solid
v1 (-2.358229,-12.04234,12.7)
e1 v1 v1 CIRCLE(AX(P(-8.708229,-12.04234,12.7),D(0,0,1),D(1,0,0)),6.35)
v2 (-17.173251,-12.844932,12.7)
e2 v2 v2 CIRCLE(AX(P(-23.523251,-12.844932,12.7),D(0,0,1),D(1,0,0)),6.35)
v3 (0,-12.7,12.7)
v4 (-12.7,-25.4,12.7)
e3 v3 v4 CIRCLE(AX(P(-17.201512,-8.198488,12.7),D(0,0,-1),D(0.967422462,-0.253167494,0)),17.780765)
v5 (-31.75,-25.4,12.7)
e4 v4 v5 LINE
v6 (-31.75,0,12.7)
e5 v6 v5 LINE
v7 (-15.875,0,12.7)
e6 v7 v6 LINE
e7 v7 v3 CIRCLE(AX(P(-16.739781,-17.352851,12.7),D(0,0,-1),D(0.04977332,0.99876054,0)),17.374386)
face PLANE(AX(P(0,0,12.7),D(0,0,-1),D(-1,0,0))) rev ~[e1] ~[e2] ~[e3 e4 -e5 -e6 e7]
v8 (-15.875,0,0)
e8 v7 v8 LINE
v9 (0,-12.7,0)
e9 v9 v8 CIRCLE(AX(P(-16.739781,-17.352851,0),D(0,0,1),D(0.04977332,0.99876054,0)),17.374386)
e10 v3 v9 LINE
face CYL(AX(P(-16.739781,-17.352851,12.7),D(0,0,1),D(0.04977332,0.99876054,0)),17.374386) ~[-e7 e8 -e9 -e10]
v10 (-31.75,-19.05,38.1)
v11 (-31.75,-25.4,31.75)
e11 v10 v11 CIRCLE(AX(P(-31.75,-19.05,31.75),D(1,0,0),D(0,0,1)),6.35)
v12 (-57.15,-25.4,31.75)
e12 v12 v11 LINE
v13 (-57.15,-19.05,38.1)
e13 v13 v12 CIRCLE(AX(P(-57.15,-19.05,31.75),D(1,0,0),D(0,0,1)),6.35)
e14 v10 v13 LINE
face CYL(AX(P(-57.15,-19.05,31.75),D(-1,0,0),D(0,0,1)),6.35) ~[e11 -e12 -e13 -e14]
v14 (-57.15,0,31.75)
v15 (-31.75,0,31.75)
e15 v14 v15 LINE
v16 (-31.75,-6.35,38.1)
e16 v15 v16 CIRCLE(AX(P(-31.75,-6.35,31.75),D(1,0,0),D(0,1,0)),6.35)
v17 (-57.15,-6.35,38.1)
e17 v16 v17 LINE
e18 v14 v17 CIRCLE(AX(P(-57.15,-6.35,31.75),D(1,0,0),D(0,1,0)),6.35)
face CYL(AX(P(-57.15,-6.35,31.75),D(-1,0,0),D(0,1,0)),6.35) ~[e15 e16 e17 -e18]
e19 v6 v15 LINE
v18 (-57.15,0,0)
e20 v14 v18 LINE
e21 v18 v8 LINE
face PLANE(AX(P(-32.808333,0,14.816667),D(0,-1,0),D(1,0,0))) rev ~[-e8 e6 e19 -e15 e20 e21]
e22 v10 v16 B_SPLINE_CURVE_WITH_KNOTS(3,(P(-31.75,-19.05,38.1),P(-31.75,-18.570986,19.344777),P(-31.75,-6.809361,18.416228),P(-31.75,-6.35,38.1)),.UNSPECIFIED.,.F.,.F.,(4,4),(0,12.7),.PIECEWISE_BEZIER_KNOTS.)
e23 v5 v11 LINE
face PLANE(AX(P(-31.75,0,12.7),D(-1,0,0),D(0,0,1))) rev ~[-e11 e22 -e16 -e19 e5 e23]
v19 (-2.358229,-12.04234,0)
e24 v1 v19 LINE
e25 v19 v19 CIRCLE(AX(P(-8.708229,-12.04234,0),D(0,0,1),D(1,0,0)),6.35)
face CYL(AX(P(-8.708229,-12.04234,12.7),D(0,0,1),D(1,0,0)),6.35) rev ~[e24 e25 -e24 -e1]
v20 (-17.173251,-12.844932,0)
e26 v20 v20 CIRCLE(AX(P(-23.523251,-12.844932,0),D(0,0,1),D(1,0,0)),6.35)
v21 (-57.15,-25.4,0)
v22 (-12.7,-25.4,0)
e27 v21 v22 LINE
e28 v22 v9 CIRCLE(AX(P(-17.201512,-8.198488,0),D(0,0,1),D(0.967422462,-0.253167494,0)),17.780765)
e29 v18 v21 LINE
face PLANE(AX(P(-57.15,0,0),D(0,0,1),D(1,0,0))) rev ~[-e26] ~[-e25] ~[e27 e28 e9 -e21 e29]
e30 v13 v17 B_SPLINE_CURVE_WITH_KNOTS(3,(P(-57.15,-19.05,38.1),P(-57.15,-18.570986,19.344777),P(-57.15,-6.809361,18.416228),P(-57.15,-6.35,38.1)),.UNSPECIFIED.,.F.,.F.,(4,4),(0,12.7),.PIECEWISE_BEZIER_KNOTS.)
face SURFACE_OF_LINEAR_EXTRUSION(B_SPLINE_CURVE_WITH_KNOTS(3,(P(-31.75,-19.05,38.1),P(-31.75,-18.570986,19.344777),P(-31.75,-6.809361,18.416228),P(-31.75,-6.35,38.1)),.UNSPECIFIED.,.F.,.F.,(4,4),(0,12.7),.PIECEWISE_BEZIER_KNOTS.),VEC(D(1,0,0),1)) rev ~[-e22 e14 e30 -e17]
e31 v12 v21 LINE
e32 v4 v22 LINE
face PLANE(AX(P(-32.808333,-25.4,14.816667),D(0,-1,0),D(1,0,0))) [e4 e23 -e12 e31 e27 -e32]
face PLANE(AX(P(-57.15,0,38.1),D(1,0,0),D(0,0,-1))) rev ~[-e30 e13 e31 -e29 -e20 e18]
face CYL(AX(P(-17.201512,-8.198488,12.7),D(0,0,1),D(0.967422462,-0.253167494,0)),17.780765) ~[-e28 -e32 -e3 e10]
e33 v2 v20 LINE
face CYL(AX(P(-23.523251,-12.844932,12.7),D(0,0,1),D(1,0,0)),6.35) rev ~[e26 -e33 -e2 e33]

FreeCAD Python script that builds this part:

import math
import FreeCAD as App
import Part
import Sketcher

V = App.Vector
Q = App.Units.Quantity

doc = App.newDocument("Part")
params = doc.addObject("Spreadsheet::Sheet", "Params")
for row, (alias, value) in enumerate([
    ("sketch1_width", "1 in"),
    ("sketch1_height", "1.5 in"),
    ("sketch1_width2", "2.25 in"),
    ("pad1_length", "1 in"),
    ("pocket1_length", "1 in"),
    ("sketch3_width", "0.5 in"),
    ("sketch3_width2", "0.625 in"),
    ("pocket2_length", "1 in"),
    ("sketch4_diameter", "0.5 in"),
    ("pocket3_length", "1 in"),
    ("sketch5_radius", "0.25 in"),
    ("pocket4_length", "1 in"),
], start=1):
    params.set(f"A{row}", alias)
    params.set(f"B{row}", "=" + value)
    params.setAlias(f"B{row}", alias)

body = doc.addObject("PartDesign::Body", "Body")

sketch1 = body.newObject("Sketcher::SketchObject", "Sketch")
sketch1.AttachmentSupport = (doc.getObject("XZ_Plane"), [""])
sketch1.MapMode = "FlatFace"
sketch1.addGeometry([
    Part.LineSegment(V(-31.75, 38.1, 0), V(-57.15, 38.1, 0)),
    Part.LineSegment(V(-57.15, 38.1, 0), V(-57.15, 0, 0)),
    Part.LineSegment(V(-57.15, 0, 0), V(0, 0, 0)),
    Part.LineSegment(V(0, 0, 0), V(0, 12.7, 0)),
    Part.LineSegment(V(0, 12.7, 0), V(-31.75, 12.7, 0)),
    Part.LineSegment(V(-31.75, 12.7, 0), V(-31.75, 38.1, 0)),
], False)
sketch1.addConstraint([
    Sketcher.Constraint("Coincident", 0, 2, 1, 1),
    Sketcher.Constraint("Coincident", 1, 2, 2, 1),
    Sketcher.Constraint("Coincident", 2, 2, 3, 1),
    Sketcher.Constraint("Coincident", 3, 2, 4, 1),
    Sketcher.Constraint("Coincident", 4, 2, 5, 1),
    Sketcher.Constraint("Coincident", 5, 2, 0, 1),
    Sketcher.Constraint("Horizontal", 0),
    Sketcher.Constraint("Vertical", 1),
    Sketcher.Constraint("Horizontal", 2),
    Sketcher.Constraint("Vertical", 3),
    Sketcher.Constraint("Horizontal", 4),
    Sketcher.Constraint("Vertical", 5),
    Sketcher.Constraint("Coincident", 2, 2, -1, 1),
    Sketcher.Constraint("Equal", 0, 5),
    Sketcher.Constraint("DistanceX", 0, 2, 0, 1, Q("1 in")),
    Sketcher.Constraint("DistanceY", 1, 2, 1, 1, Q("1.5 in")),
    Sketcher.Constraint("DistanceX", 2, 1, 2, 2, Q("2.25 in")),
])
sketch1.setExpression("Constraints[14]", "Params.sketch1_width")
sketch1.setExpression("Constraints[15]", "Params.sketch1_height")
sketch1.setExpression("Constraints[16]", "Params.sketch1_width2")
pad1 = body.newObject("PartDesign::Pad", "Pad")
pad1.Profile = sketch1
pad1.setExpression("Length", "Params.pad1_length")

sketch2 = body.newObject("Sketcher::SketchObject", "Sketch001")
sketch2.AttachmentSupport = (doc.getObject("YZ_Plane"), [""])
sketch2.MapMode = "FlatFace"
sketch2.AttachmentOffset = App.Placement(V(0, 0, -1.25 * 25.4), App.Rotation())
sketch2.addGeometry([
    Part.LineSegment(V(-6.35, 38.1, 0), V(-19.05, 38.1, 0)),
    Part.BSplineCurve([V(-19.05, 38.1, 0), V(-18.570986, 19.344777, 0), V(-6.809361, 18.416228, 0), V(-6.35, 38.1, 0)], [4, 4], [0, 12.7], False, 3, [1, 1, 1, 1], False),
], False)
sketch2.addConstraint([
    Sketcher.Constraint("Block", 1),
    Sketcher.Constraint("Coincident", 0, 1, 1, 2),
    Sketcher.Constraint("Coincident", 1, 1, 0, 2),
])
pocket1 = body.newObject("PartDesign::Pocket", "Pocket")
pocket1.Profile = sketch2
pocket1.setExpression("Length", "Params.pocket1_length")

sketch3 = body.newObject("Sketcher::SketchObject", "Sketch002")
sketch3.AttachmentSupport = (doc.getObject("XY_Plane"), [""])
sketch3.MapMode = "FlatFace"
sketch3.AttachmentOffset = App.Placement(V(0, 0, 0.5 * 25.4), App.Rotation())
sketch3.addGeometry([
    Part.LineSegment(V(0, -25.4, 0), V(0, -12.7, 0)),
    Part.ArcOfCircle(Part.Circle(V(-17.201512, -8.198488, 0), V(0, 0, 1), 17.780765), math.radians(-75.334972), math.radians(-14.665028)),
    Part.LineSegment(V(-12.7, -25.4, 0), V(0, -25.4, 0)),
    Part.ArcOfCircle(Part.Circle(V(-16.739781, -17.352851, 0), V(0, 0, 1), 17.374386), math.radians(15.533363), math.radians(87.14702)),
    Part.LineSegment(V(0, -12.7, 0), V(0, 0, 0)),
    Part.LineSegment(V(0, 0, 0), V(-15.875, 0, 0)),
], False)
sketch3.addConstraint([
    Sketcher.Constraint("Coincident", 0, 2, 1, 2),
    Sketcher.Constraint("Coincident", 1, 1, 2, 1),
    Sketcher.Constraint("Coincident", 2, 2, 0, 1),
    Sketcher.Constraint("Coincident", 3, 1, 4, 1),
    Sketcher.Constraint("Coincident", 4, 2, 5, 1),
    Sketcher.Constraint("Coincident", 5, 2, 3, 2),
    Sketcher.Constraint("Vertical", 0),
    Sketcher.Constraint("Horizontal", 2),
    Sketcher.Constraint("Vertical", 4),
    Sketcher.Constraint("Horizontal", 5),
    Sketcher.Constraint("Coincident", 4, 2, -1, 1),
    Sketcher.Constraint("Coincident", 3, 1, 0, 2),
    Sketcher.Constraint("Equal", 2, 0),
    Sketcher.Constraint("Equal", 0, 4),
    Sketcher.Constraint("DistanceX", 2, 1, 2, 2, Q("0.5 in")),
    Sketcher.Constraint("DistanceX", 5, 2, 5, 1, Q("0.625 in")),
    Sketcher.Constraint("Radius", 1, 17.780765),
    Sketcher.Constraint("Radius", 3, 17.374386),
])
sketch3.setExpression("Constraints[14]", "Params.sketch3_width")
sketch3.setExpression("Constraints[15]", "Params.sketch3_width2")
pocket2 = body.newObject("PartDesign::Pocket", "Pocket001")
pocket2.Profile = sketch3
pocket2.setExpression("Length", "Params.pocket2_length")

sketch4 = body.newObject("Sketcher::SketchObject", "Sketch003")
sketch4.AttachmentSupport = (doc.getObject("XY_Plane"), [""])
sketch4.MapMode = "FlatFace"
sketch4.AttachmentOffset = App.Placement(V(0, 0, 0.5 * 25.4), App.Rotation())
sketch4.addGeometry([
    Part.Circle(V(-23.523251, -12.844932, 0), V(0, 0, 1), 6.35),
    Part.Circle(V(-8.708229, -12.04234, 0), V(0, 0, 1), 6.35),
], False)
sketch4.addConstraint([
    Sketcher.Constraint("Equal", 0, 1),
    Sketcher.Constraint("Diameter", 0, Q("0.5 in")),
    Sketcher.Constraint("DistanceX", 0, 3, -1, 1, 23.523251),
    Sketcher.Constraint("DistanceX", 1, 3, -1, 1, 8.708229),
    Sketcher.Constraint("DistanceY", 1, 3, -1, 1, 12.04234),
    Sketcher.Constraint("DistanceY", 0, 3, -1, 1, 12.844932),
])
sketch4.setExpression("Constraints[1]", "Params.sketch4_diameter")
pocket3 = body.newObject("PartDesign::Pocket", "Pocket002")
pocket3.Profile = sketch4
pocket3.setExpression("Length", "Params.pocket3_length")

sketch5 = body.newObject("Sketcher::SketchObject", "Sketch004")
sketch5.AttachmentSupport = (doc.getObject("YZ_Plane"), [""])
sketch5.MapMode = "FlatFace"
sketch5.AttachmentOffset = App.Placement(V(0, 0, -2.25 * 25.4), App.Rotation())
sketch5.addGeometry([
    Part.LineSegment(V(-25.4, 38.1, 0), V(-19.05, 38.1, 0)),
    Part.ArcOfCircle(Part.Circle(V(-19.05, 31.75, 0), V(0, 0, 1), 6.35), math.radians(90), math.radians(180)),
    Part.LineSegment(V(-25.4, 31.75, 0), V(-25.4, 38.1, 0)),
    Part.ArcOfCircle(Part.Circle(V(-6.35, 31.75, 0), V(0, 0, 1), 6.35), math.radians(0), math.radians(90)),
    Part.LineSegment(V(-6.35, 38.1, 0), V(0, 38.1, 0)),
    Part.LineSegment(V(0, 38.1, 0), V(0, 31.75, 0)),
], False)
sketch5.addConstraint([
    Sketcher.Constraint("Tangent", 0, 2, 1, 1),
    Sketcher.Constraint("Tangent", 1, 2, 2, 1),
    Sketcher.Constraint("Coincident", 2, 2, 0, 1),
    Sketcher.Constraint("Tangent", 3, 2, 4, 1),
    Sketcher.Constraint("Coincident", 4, 2, 5, 1),
    Sketcher.Constraint("Tangent", 5, 2, 3, 1),
    Sketcher.Constraint("Horizontal", 0),
    Sketcher.Constraint("Vertical", 2),
    Sketcher.Constraint("Horizontal", 4),
    Sketcher.Constraint("Vertical", 5),
    Sketcher.Constraint("Equal", 1, 3),
    Sketcher.Constraint("PointOnObject", 4, 2, -2),
    Sketcher.Constraint("Horizontal", 1, 3, 3, 3),
    Sketcher.Constraint("Radius", 1, Q("0.25 in")),
    Sketcher.Constraint("DistanceX", 1, 2, -1, 1, Q("1 in")),
    Sketcher.Constraint("DistanceY", -1, 1, 0, 2, Q("1.5 in")),
])
sketch5.setExpression("Constraints[13]", "Params.sketch5_radius")
pocket4 = body.newObject("PartDesign::Pocket", "Pocket003")
pocket4.Profile = sketch5
pocket4.setExpression("Length", "Params.pocket4_length")
pocket4.Reversed = True

doc.recompute()
